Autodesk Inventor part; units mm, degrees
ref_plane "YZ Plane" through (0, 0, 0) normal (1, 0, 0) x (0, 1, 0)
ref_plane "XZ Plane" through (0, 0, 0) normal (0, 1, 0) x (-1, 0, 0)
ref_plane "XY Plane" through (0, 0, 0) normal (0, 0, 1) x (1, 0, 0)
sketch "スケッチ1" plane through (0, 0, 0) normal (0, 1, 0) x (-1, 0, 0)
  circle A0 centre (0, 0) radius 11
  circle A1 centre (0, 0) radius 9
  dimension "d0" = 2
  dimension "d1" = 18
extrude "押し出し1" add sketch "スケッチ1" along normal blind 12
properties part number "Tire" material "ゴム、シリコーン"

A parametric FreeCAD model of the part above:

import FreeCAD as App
import Part
import Sketcher

V = App.Vector
Q = App.Units.Quantity

doc = App.newDocument("Part")
body = doc.addObject("PartDesign::Body", "Body")

# Sketch on XZ plane
sketch1 = body.newObject("Sketcher::SketchObject", "Sketch")
sketch1.AttachmentSupport = (doc.getObject("XZ_Plane"), [""])
sketch1.MapMode = "FlatFace"
sketch1.addGeometry([
    Part.Circle(V(0, 0, 0), V(0, 0, 1), 11),
    Part.Circle(V(0, 0, 0), V(0, 0, 1), 9),
], False)
sketch1.addConstraint([
    Sketcher.Constraint("Coincident", 0, 3, -1, 1),
    Sketcher.Constraint("Coincident", 1, 3, -1, 1),
    Sketcher.Constraint("Diameter", 1, Q("18 mm")),
    Sketcher.Constraint("Diameter", 0, Q("22 mm")),
])
pad1 = body.newObject("PartDesign::Pad", "Pad")
pad1.Profile = sketch1
pad1.Length = 12
pad1.Reversed = True

doc.recompute()
